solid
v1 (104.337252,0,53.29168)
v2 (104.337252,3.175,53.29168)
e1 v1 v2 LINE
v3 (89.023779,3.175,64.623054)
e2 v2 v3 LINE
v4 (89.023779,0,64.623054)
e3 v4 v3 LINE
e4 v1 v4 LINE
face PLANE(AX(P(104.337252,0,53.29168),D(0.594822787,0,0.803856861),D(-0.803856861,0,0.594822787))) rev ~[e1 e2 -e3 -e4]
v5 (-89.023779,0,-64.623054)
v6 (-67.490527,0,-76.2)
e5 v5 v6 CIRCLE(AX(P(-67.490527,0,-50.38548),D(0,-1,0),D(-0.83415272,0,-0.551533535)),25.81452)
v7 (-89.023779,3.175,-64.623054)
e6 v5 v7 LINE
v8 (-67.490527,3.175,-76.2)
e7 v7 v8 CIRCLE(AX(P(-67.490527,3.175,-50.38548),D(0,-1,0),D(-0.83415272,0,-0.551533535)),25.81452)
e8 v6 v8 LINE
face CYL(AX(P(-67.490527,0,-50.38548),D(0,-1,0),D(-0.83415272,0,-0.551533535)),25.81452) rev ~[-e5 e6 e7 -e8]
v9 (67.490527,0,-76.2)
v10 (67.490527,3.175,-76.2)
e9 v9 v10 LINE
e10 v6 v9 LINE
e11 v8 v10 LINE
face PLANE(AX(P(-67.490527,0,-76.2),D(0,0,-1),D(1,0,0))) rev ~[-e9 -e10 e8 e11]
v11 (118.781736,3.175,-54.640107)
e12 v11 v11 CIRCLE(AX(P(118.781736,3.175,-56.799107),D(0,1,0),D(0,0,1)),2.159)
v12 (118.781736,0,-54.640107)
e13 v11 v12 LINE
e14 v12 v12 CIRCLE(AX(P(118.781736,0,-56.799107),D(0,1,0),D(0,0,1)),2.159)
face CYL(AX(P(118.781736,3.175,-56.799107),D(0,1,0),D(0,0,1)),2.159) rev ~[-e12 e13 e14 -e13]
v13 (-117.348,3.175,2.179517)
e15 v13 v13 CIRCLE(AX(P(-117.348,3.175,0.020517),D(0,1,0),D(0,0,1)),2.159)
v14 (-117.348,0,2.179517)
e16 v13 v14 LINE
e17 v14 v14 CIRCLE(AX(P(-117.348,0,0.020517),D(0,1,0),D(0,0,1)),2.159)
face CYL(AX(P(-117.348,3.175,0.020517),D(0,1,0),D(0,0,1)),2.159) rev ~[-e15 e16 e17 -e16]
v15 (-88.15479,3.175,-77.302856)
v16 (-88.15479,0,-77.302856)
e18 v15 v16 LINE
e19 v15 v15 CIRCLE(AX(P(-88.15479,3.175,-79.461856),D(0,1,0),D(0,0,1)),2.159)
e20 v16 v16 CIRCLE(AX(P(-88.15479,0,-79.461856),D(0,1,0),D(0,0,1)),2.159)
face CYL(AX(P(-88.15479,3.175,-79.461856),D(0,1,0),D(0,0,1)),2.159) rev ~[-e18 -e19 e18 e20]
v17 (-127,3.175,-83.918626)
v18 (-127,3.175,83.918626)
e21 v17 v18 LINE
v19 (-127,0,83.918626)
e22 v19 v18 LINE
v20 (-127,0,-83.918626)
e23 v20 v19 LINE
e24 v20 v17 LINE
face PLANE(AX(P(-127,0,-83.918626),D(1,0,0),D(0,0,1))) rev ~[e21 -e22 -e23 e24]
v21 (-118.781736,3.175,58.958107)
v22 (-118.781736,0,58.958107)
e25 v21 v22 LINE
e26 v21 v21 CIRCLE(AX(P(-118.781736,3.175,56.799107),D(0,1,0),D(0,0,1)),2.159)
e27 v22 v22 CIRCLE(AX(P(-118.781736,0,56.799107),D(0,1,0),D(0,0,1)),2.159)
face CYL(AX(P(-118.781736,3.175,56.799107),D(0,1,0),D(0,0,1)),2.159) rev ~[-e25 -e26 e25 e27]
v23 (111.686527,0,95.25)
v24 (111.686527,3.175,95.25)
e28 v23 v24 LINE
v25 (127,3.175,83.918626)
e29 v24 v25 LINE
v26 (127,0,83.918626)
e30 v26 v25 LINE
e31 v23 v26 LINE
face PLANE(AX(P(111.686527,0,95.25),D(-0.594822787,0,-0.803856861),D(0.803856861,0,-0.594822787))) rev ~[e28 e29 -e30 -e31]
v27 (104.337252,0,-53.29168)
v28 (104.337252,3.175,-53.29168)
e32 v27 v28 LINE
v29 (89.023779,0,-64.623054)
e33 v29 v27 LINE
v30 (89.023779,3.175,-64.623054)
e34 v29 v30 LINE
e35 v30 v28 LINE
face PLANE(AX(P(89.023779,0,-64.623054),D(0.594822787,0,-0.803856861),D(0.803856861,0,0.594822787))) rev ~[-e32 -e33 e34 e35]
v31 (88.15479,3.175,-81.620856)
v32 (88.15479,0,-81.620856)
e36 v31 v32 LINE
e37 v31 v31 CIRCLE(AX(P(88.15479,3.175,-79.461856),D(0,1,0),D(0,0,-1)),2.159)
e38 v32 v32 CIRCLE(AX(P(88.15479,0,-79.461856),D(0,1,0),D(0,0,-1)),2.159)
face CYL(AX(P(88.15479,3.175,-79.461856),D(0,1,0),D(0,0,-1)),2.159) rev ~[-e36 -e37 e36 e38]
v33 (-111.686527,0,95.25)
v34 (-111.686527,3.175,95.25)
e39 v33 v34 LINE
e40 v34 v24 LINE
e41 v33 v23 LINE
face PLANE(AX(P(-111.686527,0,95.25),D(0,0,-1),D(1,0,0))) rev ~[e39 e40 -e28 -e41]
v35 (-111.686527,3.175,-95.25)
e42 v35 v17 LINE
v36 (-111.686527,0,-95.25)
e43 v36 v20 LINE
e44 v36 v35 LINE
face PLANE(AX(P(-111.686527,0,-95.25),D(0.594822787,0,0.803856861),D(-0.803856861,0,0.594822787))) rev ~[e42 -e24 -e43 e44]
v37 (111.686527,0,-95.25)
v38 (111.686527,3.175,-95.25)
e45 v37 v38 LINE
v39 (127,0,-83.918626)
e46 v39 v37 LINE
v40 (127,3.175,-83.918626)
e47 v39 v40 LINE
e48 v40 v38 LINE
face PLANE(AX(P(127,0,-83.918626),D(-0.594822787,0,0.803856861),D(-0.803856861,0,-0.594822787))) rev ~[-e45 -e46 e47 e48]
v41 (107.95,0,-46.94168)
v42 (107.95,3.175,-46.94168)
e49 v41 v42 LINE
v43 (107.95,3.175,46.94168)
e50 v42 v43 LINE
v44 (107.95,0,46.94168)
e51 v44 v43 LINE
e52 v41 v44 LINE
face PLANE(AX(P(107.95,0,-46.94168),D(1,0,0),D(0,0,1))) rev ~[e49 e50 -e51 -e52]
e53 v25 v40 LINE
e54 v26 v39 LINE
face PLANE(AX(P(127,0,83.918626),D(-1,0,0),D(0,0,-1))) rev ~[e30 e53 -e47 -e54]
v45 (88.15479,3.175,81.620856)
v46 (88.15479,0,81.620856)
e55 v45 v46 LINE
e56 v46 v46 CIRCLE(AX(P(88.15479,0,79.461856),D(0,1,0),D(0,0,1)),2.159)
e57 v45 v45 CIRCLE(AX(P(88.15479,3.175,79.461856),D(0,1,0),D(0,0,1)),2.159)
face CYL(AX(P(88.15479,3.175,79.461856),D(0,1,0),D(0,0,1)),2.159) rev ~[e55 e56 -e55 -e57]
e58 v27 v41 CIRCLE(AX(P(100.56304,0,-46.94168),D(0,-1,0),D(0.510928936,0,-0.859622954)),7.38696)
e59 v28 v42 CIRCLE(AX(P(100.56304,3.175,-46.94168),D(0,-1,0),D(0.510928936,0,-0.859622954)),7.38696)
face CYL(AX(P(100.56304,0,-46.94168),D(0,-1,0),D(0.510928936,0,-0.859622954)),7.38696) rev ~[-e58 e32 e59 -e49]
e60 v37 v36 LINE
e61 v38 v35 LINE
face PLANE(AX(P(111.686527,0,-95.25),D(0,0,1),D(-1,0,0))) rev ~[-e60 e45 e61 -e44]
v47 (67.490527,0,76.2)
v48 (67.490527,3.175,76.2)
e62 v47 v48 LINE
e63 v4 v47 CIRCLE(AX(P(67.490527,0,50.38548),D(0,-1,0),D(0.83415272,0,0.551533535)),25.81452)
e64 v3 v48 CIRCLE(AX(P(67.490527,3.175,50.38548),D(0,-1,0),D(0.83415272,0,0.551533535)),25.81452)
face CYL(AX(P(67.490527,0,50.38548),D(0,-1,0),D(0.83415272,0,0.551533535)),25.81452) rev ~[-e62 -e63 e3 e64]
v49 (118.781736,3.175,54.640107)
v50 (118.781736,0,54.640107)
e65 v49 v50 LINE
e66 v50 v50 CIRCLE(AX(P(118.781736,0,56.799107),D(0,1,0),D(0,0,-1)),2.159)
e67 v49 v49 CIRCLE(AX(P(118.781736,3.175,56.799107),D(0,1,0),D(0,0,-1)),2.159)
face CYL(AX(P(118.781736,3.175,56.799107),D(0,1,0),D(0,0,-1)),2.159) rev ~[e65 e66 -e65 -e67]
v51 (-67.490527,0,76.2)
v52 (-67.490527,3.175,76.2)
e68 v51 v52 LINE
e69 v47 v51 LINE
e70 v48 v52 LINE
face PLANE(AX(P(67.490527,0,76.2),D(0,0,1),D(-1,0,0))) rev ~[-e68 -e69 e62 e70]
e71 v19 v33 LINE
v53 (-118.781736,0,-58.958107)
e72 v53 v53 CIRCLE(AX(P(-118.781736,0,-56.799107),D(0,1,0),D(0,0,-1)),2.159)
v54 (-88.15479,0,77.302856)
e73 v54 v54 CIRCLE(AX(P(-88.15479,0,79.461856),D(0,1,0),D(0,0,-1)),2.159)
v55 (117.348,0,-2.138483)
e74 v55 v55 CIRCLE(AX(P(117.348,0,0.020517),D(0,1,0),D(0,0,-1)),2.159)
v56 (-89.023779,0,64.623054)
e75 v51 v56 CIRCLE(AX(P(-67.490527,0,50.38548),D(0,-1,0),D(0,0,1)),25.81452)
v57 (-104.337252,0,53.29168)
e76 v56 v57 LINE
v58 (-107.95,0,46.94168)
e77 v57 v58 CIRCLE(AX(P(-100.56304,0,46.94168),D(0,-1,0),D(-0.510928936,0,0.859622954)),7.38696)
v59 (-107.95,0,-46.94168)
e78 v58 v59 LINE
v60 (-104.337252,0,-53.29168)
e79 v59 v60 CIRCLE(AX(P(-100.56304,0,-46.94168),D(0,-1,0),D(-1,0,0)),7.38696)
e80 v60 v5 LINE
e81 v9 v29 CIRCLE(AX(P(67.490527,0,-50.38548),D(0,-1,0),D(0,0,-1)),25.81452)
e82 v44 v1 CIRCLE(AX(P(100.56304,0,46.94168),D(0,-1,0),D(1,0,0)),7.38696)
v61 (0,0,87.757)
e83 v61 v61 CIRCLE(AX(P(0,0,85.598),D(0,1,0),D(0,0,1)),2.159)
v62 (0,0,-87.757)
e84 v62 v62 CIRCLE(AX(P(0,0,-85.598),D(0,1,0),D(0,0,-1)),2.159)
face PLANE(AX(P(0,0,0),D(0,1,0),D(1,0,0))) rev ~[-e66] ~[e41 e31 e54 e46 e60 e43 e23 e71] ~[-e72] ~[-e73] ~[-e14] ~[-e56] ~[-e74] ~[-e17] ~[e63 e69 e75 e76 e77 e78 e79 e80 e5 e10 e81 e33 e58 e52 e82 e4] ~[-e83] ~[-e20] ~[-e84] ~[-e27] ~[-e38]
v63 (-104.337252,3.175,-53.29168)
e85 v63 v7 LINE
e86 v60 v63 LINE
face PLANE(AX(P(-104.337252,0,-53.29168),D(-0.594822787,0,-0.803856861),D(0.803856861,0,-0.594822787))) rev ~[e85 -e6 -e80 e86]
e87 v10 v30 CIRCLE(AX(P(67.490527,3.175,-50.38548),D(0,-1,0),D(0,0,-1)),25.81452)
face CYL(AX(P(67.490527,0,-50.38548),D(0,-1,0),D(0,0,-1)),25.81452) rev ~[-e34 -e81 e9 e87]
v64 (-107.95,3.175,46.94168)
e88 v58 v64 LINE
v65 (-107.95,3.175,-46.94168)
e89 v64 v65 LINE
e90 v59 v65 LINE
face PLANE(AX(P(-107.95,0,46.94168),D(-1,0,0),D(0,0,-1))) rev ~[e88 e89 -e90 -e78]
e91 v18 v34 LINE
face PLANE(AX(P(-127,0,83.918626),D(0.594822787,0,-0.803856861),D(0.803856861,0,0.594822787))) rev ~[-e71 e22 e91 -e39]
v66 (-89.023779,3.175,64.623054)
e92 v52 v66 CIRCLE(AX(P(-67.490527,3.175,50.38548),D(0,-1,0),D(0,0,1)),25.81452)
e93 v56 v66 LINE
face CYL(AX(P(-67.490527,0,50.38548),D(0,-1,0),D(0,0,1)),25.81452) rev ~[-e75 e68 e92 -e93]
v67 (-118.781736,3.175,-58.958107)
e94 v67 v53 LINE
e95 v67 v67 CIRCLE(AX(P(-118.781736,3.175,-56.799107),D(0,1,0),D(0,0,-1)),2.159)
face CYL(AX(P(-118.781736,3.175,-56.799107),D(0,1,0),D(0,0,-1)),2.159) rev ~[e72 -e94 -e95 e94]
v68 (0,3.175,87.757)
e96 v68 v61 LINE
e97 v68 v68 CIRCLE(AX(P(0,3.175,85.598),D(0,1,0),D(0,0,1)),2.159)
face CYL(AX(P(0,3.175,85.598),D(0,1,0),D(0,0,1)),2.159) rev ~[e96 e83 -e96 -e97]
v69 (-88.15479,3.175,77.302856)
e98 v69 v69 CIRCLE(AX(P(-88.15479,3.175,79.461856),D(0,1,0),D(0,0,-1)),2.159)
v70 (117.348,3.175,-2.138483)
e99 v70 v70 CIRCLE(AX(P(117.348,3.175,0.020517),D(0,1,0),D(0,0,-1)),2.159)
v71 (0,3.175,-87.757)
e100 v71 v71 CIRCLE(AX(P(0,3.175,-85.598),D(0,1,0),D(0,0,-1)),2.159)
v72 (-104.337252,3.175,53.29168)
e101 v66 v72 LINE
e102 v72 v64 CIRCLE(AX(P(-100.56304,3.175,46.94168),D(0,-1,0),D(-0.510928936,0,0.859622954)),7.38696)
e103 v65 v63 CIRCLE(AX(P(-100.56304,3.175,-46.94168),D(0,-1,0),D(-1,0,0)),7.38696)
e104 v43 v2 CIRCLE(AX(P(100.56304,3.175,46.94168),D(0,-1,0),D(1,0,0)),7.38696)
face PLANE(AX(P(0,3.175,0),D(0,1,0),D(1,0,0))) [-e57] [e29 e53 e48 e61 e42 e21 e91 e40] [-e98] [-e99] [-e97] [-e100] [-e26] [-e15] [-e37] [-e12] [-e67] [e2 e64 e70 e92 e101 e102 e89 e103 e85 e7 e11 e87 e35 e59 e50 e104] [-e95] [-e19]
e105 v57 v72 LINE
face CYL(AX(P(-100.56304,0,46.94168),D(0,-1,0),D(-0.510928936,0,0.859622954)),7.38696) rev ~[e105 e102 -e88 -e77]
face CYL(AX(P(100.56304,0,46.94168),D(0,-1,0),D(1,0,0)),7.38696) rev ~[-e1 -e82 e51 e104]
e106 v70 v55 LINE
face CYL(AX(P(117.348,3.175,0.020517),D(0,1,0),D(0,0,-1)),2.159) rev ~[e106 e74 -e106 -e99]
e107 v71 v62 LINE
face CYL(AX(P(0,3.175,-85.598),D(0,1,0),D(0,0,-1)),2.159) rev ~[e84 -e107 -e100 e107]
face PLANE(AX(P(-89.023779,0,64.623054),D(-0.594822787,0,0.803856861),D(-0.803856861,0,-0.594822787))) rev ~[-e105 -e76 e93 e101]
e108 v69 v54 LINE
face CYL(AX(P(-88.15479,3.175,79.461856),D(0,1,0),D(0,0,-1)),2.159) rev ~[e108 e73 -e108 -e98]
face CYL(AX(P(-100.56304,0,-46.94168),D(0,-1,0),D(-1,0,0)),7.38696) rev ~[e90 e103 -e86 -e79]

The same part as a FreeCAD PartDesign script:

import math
import FreeCAD as App
import Part
import Sketcher
from FreeCAD import Vector
Q = App.Units.Quantity


def add_polygon(sketch, points):
    """Adds a closed chain of lines whose ends are joined by coincident constraints."""
    first, n = sketch.GeometryCount, len(points)
    for a, b in zip(points, points[1:] + points[:1]):
        sketch.addGeometry(Part.LineSegment(App.Vector(*a, 0), App.Vector(*b, 0)), False)
    for i in range(n):
        sketch.addConstraint(Sketcher.Constraint("Coincident", first + i, 2, first + (i + 1) % n, 1))

doc = App.newDocument("Part")
params = doc.addObject("Spreadsheet::Sheet", "Params")
for row, (alias, value) in enumerate([
    ("sketch1_length", "0.75 in"),
    ("pad1_length", "0.125 in"),
    ("sketch2_diameter", "0.17 in"),
], start=1):
    params.set(f"A{row}", alias)
    params.set(f"B{row}", "=" + value)
    params.setAlias(f"B{row}", alias)

body = doc.addObject("PartDesign::Body", "Body")

# Sketch on XZ plane
sketch1 = doc.addObject("Sketcher::SketchObject", "Sketch")
body.addObject(sketch1)
sketch1.AttachmentSupport = (doc.XZ_Plane, [""])
sketch1.MapMode = "FlatFace"
add_polygon(sketch1, [(-111.686527, -95.25), (-127, -83.918626), (-127, 83.918626), (-111.686527, 95.25), (111.686527, 95.25), (127, 83.918626), (127, -83.918626), (111.686527, -95.25)])  # lines 0-7
sketch1.addGeometry(Part.ArcOfCircle(Part.Circle(Vector(-100.56304, 46.94168, 0), Vector(0, 0, 1), 7.38696), math.radians(120.725726), math.radians(180)), False)  # 8
sketch1.addGeometry(Part.LineSegment(Vector(-107.95, 46.94168, 0), Vector(-107.95, -46.94168, 0)), False)  # 9
sketch1.addGeometry(Part.ArcOfCircle(Part.Circle(Vector(-100.56304, -46.94168, 0), Vector(0, 0, 1), 7.38696), math.radians(-180), math.radians(-120.725726)), False)  # 10
sketch1.addGeometry(Part.LineSegment(Vector(-104.337252, -53.29168, 0), Vector(-89.023779, -64.623054, 0)), False)  # 11
sketch1.addGeometry(Part.ArcOfCircle(Part.Circle(Vector(-67.490527, -50.38548, 0), Vector(0, 0, 1), 25.81452), math.radians(-146.527716), math.radians(-90)), False)  # 12
sketch1.addGeometry(Part.LineSegment(Vector(-67.490527, -76.2, 0), Vector(67.490527, -76.2, 0)), False)  # 13
sketch1.addGeometry(Part.ArcOfCircle(Part.Circle(Vector(67.490527, -50.38548, 0), Vector(0, 0, 1), 25.81452), math.radians(-90), math.radians(-33.472284)), False)  # 14
sketch1.addGeometry(Part.LineSegment(Vector(89.023779, -64.623054, 0), Vector(104.337252, -53.29168, 0)), False)  # 15
sketch1.addGeometry(Part.ArcOfCircle(Part.Circle(Vector(100.56304, -46.94168, 0), Vector(0, 0, 1), 7.38696), math.radians(-59.274274), math.radians(0)), False)  # 16
sketch1.addGeometry(Part.LineSegment(Vector(107.95, -46.94168, 0), Vector(107.95, 46.94168, 0)), False)  # 17
sketch1.addGeometry(Part.ArcOfCircle(Part.Circle(Vector(100.56304, 46.94168, 0), Vector(0, 0, 1), 7.38696), math.radians(0), math.radians(59.274274)), False)  # 18
sketch1.addGeometry(Part.LineSegment(Vector(104.337252, 53.29168, 0), Vector(89.023779, 64.623054, 0)), False)  # 19
sketch1.addGeometry(Part.ArcOfCircle(Part.Circle(Vector(67.490527, 50.38548, 0), Vector(0, 0, 1), 25.81452), math.radians(33.472284), math.radians(90)), False)  # 20
sketch1.addGeometry(Part.LineSegment(Vector(67.490527, 76.2, 0), Vector(-67.490527, 76.2, 0)), False)  # 21
sketch1.addGeometry(Part.ArcOfCircle(Part.Circle(Vector(-67.490527, 50.38548, 0), Vector(0, 0, 1), 25.81452), math.radians(90), math.radians(146.527716)), False)  # 22
sketch1.addGeometry(Part.LineSegment(Vector(-89.023779, 64.623054, 0), Vector(-104.337252, 53.29168, 0)), False)  # 23
sketch1.addConstraint([
    Sketcher.Constraint("Tangent", 8, 2, 9, 1),
    Sketcher.Constraint("Tangent", 9, 2, 10, 1),
    Sketcher.Constraint("Coincident", 10, 2, 11, 1),
    Sketcher.Constraint("Coincident", 11, 2, 12, 1),
    Sketcher.Constraint("Tangent", 12, 2, 13, 1),
    Sketcher.Constraint("Tangent", 13, 2, 14, 1),
    Sketcher.Constraint("Coincident", 14, 2, 15, 1),
    Sketcher.Constraint("Coincident", 15, 2, 16, 1),
    Sketcher.Constraint("Tangent", 16, 2, 17, 1),
    Sketcher.Constraint("Tangent", 17, 2, 18, 1),
    Sketcher.Constraint("Coincident", 18, 2, 19, 1),
    Sketcher.Constraint("Coincident", 19, 2, 20, 1),
    Sketcher.Constraint("Tangent", 20, 2, 21, 1),
    Sketcher.Constraint("Tangent", 21, 2, 22, 1),
    Sketcher.Constraint("Coincident", 22, 2, 23, 1),
    Sketcher.Constraint("Coincident", 23, 2, 8, 1),
    Sketcher.Constraint("Vertical", 1),
    Sketcher.Constraint("Horizontal", 3),
    Sketcher.Constraint("Vertical", 5),
    Sketcher.Constraint("Horizontal", 7),
    Sketcher.Constraint("Vertical", 9),
    Sketcher.Constraint("Horizontal", 13),
    Sketcher.Constraint("Vertical", 17),
    Sketcher.Constraint("Horizontal", 21),
    Sketcher.Constraint("Equal", 8, 10),
    Sketcher.Constraint("Equal", 12, 14),
    Sketcher.Constraint("Equal", 10, 16),
    Sketcher.Constraint("Equal", 16, 18),
    Sketcher.Constraint("Equal", 14, 20),
    Sketcher.Constraint("Equal", 20, 22),
    Sketcher.Constraint("Symmetric", 8, 3, 16, 3, -1, 1),
    Sketcher.Constraint("Symmetric", 12, 3, 20, 3, -1, 1),
    Sketcher.Constraint("Symmetric", 0, 2, 4, 2, -1, 1),
    Sketcher.Constraint("Symmetric", 2, 2, 6, 2, -1, 1),
    Sketcher.Constraint("Symmetric", 10, 2, 18, 2, -1, 1),
    Sketcher.Constraint("Symmetric", 14, 2, 22, 2, -1, 1),
    Sketcher.Constraint("Symmetric", 11, 2, 14, 2, -2),
    Sketcher.Constraint("Symmetric", 10, 2, 15, 2, -2),
    Sketcher.Constraint("Parallel", 0, 4),
    Sketcher.Constraint("Parallel", 2, 6),
    Sketcher.Constraint("Parallel", 4, 11),
    Sketcher.Constraint("Parallel", 6, 15),
    Sketcher.Constraint("Parallel", 11, 19),
    Sketcher.Constraint("Parallel", 15, 23),
    Sketcher.Constraint("Horizontal", 1, 2, 4, 2),
    Sketcher.Constraint("Equal", 6, 11),
    Sketcher.Constraint("DistanceX", 0, 2, -1, 1, Q("5 in")),
    Sketcher.Constraint("DistanceY", 12, 2, -1, 1, Q("3 in")),
    Sketcher.Constraint("Angle", 0, Q("143.5 deg")),
    Sketcher.Constraint("Distance", 0, Q("0.75 in")),
    Sketcher.Constraint("DistanceY", -1, 1, 2, 2, Q("3.75 in")),
    Sketcher.Constraint("DistanceX", 8, 2, -1, 1, Q("4.25 in")),
    Sketcher.Constraint("DistanceX", 2, 2, 22, 3, Q("1.74 in")),
    Sketcher.Constraint("DistanceY", 10, 2, 9, 2, Q("0.25 in")),
    Sketcher.Constraint("Radius", 8, 7.38696),
    Sketcher.Constraint("Radius", 12, 25.81452),
])
sketch1.setExpression("Constraints[57]", "Params.sketch1_length")
pad1 = doc.addObject("PartDesign::Pad", "Pad")
body.addObject(pad1)
pad1.Profile = sketch1
pad1.setExpression("Length", "Params.pad1_length")
pad1.Reversed = True

# Sketch on XZ plane
sketch2 = doc.addObject("Sketcher::SketchObject", "Sketch001")
body.addObject(sketch2)
sketch2.AttachmentSupport = (doc.XZ_Plane, [""])
sketch2.MapMode = "FlatFace"
sketch2.AttachmentOffset = App.Placement(Vector(0, 0, -0.125 * 25.4), App.Rotation())
sketch2.addGeometry([
    Part.Circle(Vector(-88.15479, -79.461856, 0), Vector(0, 0, 1), 2.159),  # 0
    Part.Circle(Vector(88.15479, -79.461856, 0), Vector(0, 0, 1), 2.159),  # 1
    Part.Circle(Vector(88.15479, 79.461856, 0), Vector(0, 0, 1), 2.159),  # 2
    Part.Circle(Vector(-88.15479, 79.461856, 0), Vector(0, 0, 1), 2.159),  # 3
    Part.Circle(Vector(-118.781736, -56.799107, 0), Vector(0, 0, 1), 2.159),  # 4
    Part.Circle(Vector(118.781736, -56.799107, 0), Vector(0, 0, 1), 2.159),  # 5
    Part.Circle(Vector(-118.781736, 56.799107, 0), Vector(0, 0, 1), 2.159),  # 6
    Part.Circle(Vector(118.781736, 56.799107, 0), Vector(0, 0, 1), 2.159),  # 7
    Part.Circle(Vector(0, 85.598, 0), Vector(0, 0, 1), 2.159),  # 8
    Part.Circle(Vector(0, -85.598, 0), Vector(0, 0, 1), 2.159),  # 9
    Part.Circle(Vector(-117.348, 0.020517, 0), Vector(0, 0, 1), 2.159),  # 10
    Part.Circle(Vector(117.348, 0.020517, 0), Vector(0, 0, 1), 2.159),  # 11
], False)
sketch2.addConstraint([
    Sketcher.Constraint("Equal", 0, 1),
    Sketcher.Constraint("Equal", 1, 2),
    Sketcher.Constraint("Equal", 2, 3),
    Sketcher.Constraint("Equal", 3, 4),
    Sketcher.Constraint("Equal", 4, 5),
    Sketcher.Constraint("Equal", 5, 6),
    Sketcher.Constraint("Equal", 6, 7),
    Sketcher.Constraint("Equal", 7, 8),
    Sketcher.Constraint("Equal", 8, 9),
    Sketcher.Constraint("Equal", 9, 10),
    Sketcher.Constraint("Equal", 10, 11),
    Sketcher.Constraint("Symmetric", 0, 3, 2, 3, -1, 1),
    Sketcher.Constraint("Symmetric", 1, 3, 3, 3, -1, 1),
    Sketcher.Constraint("Symmetric", 5, 3, 6, 3, -1, 1),
    Sketcher.Constraint("Symmetric", 4, 3, 7, 3, -1, 1),
    Sketcher.Constraint("Symmetric", 8, 3, 9, 3, -1, 1),
    Sketcher.Constraint("Symmetric", 0, 3, 1, 3, -2),
    Sketcher.Constraint("Symmetric", 4, 3, 5, 3, -2),
    Sketcher.Constraint("Symmetric", 10, 3, 11, 3, -2),
    Sketcher.Constraint("PointOnObject", 8, 3, -2),
    Sketcher.Constraint("Diameter", 0, Q("0.17 in")),
    Sketcher.Constraint("DistanceY", -1, 1, 8, 3, Q("3.37 in")),
    Sketcher.Constraint("DistanceX", 10, 3, -1, 1, Q("4.62 in")),
    Sketcher.Constraint("DistanceX", 0, 3, -1, 1, 88.15479),
    Sketcher.Constraint("DistanceY", 1, 3, 2, 3, 158.923711),
    Sketcher.Constraint("DistanceY", 0, 3, 4, 3, 22.662748),
    Sketcher.Constraint("DistanceY", 10, 3, 6, 3, 56.778591),
    Sketcher.Constraint("DistanceX", 4, 3, -1, 1, 118.781736),
])
sketch2.setExpression("Constraints[20]", "Params.sketch2_diameter")
pocket1 = doc.addObject("PartDesign::Pocket", "Pocket")
body.addObject(pocket1)
pocket1.Profile = sketch2
pocket1.Type = "ThroughAll"
pocket1.Reversed = True

doc.recompute()
